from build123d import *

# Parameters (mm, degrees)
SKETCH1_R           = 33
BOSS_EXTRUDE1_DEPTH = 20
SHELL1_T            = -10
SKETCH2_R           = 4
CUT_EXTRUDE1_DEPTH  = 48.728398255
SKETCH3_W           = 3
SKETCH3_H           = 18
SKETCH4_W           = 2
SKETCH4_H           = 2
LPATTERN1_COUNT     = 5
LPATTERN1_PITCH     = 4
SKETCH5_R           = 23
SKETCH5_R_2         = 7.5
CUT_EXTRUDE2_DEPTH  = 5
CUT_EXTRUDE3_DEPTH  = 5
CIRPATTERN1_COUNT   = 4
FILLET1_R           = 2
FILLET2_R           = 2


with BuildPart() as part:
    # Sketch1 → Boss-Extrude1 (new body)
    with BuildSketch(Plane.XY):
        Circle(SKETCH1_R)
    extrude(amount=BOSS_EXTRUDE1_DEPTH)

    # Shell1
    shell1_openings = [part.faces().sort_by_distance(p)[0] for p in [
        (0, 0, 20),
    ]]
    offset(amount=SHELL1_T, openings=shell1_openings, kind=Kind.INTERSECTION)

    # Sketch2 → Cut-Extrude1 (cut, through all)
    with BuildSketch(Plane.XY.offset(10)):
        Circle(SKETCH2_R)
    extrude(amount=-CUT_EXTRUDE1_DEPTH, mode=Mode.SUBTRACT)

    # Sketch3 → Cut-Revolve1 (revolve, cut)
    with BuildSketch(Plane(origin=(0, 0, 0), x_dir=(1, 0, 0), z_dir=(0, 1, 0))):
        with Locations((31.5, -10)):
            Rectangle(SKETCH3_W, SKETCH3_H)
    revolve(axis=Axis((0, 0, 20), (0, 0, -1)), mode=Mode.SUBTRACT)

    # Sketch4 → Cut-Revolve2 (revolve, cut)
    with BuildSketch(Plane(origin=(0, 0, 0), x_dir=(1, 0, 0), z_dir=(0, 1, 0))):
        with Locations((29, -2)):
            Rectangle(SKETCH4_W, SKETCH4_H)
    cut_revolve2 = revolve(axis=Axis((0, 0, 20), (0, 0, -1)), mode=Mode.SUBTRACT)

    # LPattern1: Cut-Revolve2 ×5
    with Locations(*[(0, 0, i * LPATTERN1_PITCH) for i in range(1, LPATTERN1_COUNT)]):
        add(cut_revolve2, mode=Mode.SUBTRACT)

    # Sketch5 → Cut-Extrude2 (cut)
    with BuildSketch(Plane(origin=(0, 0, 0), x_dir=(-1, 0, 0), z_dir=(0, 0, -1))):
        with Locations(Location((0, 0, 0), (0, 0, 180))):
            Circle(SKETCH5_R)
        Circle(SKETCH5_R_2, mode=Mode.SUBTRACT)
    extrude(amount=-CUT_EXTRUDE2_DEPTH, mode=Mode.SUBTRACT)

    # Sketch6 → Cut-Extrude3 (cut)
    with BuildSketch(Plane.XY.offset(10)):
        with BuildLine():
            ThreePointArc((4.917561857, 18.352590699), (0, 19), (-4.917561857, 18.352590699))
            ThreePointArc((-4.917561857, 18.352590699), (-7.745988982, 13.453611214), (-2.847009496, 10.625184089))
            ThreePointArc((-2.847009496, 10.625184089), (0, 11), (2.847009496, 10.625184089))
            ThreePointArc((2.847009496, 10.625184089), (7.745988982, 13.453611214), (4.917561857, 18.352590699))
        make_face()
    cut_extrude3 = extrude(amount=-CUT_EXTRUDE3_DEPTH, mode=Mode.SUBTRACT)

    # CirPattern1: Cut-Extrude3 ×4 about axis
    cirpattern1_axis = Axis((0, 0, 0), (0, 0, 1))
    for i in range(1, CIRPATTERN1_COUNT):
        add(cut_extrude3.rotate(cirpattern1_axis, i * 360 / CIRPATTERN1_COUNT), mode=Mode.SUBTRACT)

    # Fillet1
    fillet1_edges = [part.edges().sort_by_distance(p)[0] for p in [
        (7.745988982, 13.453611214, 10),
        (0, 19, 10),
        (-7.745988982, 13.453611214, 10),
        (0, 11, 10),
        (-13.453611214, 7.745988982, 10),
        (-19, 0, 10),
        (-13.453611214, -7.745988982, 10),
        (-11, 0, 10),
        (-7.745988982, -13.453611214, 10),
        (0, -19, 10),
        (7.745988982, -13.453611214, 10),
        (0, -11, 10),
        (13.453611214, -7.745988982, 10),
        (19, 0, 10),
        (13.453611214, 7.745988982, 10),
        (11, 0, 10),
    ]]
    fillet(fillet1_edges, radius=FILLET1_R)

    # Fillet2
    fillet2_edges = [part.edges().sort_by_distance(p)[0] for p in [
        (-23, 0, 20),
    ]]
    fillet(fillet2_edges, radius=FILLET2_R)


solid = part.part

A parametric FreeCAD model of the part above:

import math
import FreeCAD as App
import Part
import Sketcher

V = App.Vector
Q = App.Units.Quantity


def edges_at(feature, points):
    """Names of the edges that pass closest to the given points."""
    edges = feature.Shape.Edges
    near = lambda p: min(range(len(edges)), key=lambda i: edges[i].distToShape(Part.Vertex(*p))[0])
    return sorted({f"Edge{near(p) + 1}" for p in points})


def faces_at(feature, points):
    """Names of the faces that lie closest to the given points."""
    faces = feature.Shape.Faces
    near = lambda p: min(range(len(faces)), key=lambda i: faces[i].distToShape(Part.Vertex(*p))[0])
    return sorted({f"Face{near(p) + 1}" for p in points})

doc = App.newDocument("Part")
body = doc.addObject("PartDesign::Body", "Body")

sketch1 = doc.addObject("Sketcher::SketchObject", "Sketch")
body.addObject(sketch1)
sketch1.AttachmentSupport = (doc.XY_Plane, [""])
sketch1.MapMode = "FlatFace"
sketch1.addGeometry(Part.Circle(V(0, 0, 0), V(0, 0, 1), 33), False)
sketch1.addConstraint([
    Sketcher.Constraint("Coincident", 0, 3, -1, 1),
    Sketcher.Constraint("Diameter", 0, Q("66 mm")),
])
pad1 = doc.addObject("PartDesign::Pad", "Pad")
body.addObject(pad1)
pad1.Profile = sketch1
pad1.Length = 20
doc.recompute()

thickness = doc.addObject("PartDesign::Thickness", "Thickness")
body.addObject(thickness)
thickness.Base = (pad1, faces_at(pad1, [(0, 0, 20)]))
thickness.Value = 10
thickness.Reversed = True
thickness.Join = "Intersection"

sketch2 = doc.addObject("Sketcher::SketchObject", "Sketch001")
body.addObject(sketch2)
sketch2.AttachmentSupport = (doc.XY_Plane, [""])
sketch2.MapMode = "FlatFace"
sketch2.AttachmentOffset = App.Placement(V(0, 0, 10), App.Rotation())
sketch2.addGeometry(Part.Circle(V(0, 0, 0), V(0, 0, 1), 4), False)
sketch2.addConstraint([
    Sketcher.Constraint("Coincident", 0, 3, -1, 1),
    Sketcher.Constraint("Diameter", 0, Q("8 mm")),
])
pocket1 = doc.addObject("PartDesign::Pocket", "Pocket")
body.addObject(pocket1)
pocket1.Profile = sketch2
pocket1.Type = "ThroughAll"

sketch3 = doc.addObject("Sketcher::SketchObject", "Sketch002")
body.addObject(sketch3)
sketch3.AttachmentSupport = (doc.XZ_Plane, [""])
sketch3.MapMode = "FlatFace"
sketch3.addGeometry([
    Part.LineSegment(V(30, 1, 0), V(30, 19, 0)),
    Part.LineSegment(V(30, 19, 0), V(33, 19, 0)),
    Part.LineSegment(V(33, 19, 0), V(33, 1, 0)),
    Part.LineSegment(V(33, 1, 0), V(30, 1, 0)),
], False)
sketch3.addConstraint([
    Sketcher.Constraint("Coincident", 0, 2, 1, 1),
    Sketcher.Constraint("Coincident", 1, 2, 2, 1),
    Sketcher.Constraint("Coincident", 2, 2, 3, 1),
    Sketcher.Constraint("Coincident", 3, 2, 0, 1),
    Sketcher.Constraint("Vertical", 0),
    Sketcher.Constraint("Horizontal", 1),
    Sketcher.Constraint("Vertical", 2),
    Sketcher.Constraint("Horizontal", 3),
    Sketcher.Constraint("DistanceX", 1, 1, 1, 2, Q("3 mm")),
    Sketcher.Constraint("DistanceY", 0, 1, 0, 2, Q("18 mm")),
    Sketcher.Constraint("DistanceX", -1, 1, 0, 2, Q("30 mm")),
    Sketcher.Constraint("DistanceY", -1, 1, 0, 2, Q("19 mm")),
])
groove = doc.addObject("PartDesign::Groove", "Groove")
body.addObject(groove)
groove.Profile = sketch3
groove.ReferenceAxis = (sketch3, ["V_Axis"])
groove.Angle = 360

sketch4 = doc.addObject("Sketcher::SketchObject", "Sketch003")
body.addObject(sketch4)
sketch4.AttachmentSupport = (doc.XZ_Plane, [""])
sketch4.MapMode = "FlatFace"
sketch4.addGeometry([
    Part.LineSegment(V(28, 1, 0), V(28, 3, 0)),
    Part.LineSegment(V(28, 3, 0), V(30, 3, 0)),
    Part.LineSegment(V(30, 3, 0), V(30, 1, 0)),
    Part.LineSegment(V(30, 1, 0), V(28, 1, 0)),
], False)
sketch4.addConstraint([
    Sketcher.Constraint("Coincident", 0, 2, 1, 1),
    Sketcher.Constraint("Coincident", 1, 2, 2, 1),
    Sketcher.Constraint("Coincident", 2, 2, 3, 1),
    Sketcher.Constraint("Coincident", 3, 2, 0, 1),
    Sketcher.Constraint("Vertical", 0),
    Sketcher.Constraint("Horizontal", 1),
    Sketcher.Constraint("Vertical", 2),
    Sketcher.Constraint("Horizontal", 3),
    Sketcher.Constraint("Equal", 3, 0),
    Sketcher.Constraint("DistanceX", 1, 1, 1, 2, Q("2 mm")),
    Sketcher.Constraint("DistanceX", -1, 1, 0, 2, Q("28 mm")),
    Sketcher.Constraint("DistanceY", -1, 1, 0, 2, Q("3 mm")),
])
groove2 = doc.addObject("PartDesign::Groove", "Groove001")
body.addObject(groove2)
groove2.Profile = sketch4
groove2.ReferenceAxis = (sketch4, ["V_Axis"])
groove2.Angle = 360
doc.recompute()

linearpattern = doc.addObject("PartDesign::LinearPattern", "LinearPattern")
body.addObject(linearpattern)
linearpattern.Originals = [groove2]
linearpattern.Direction = (doc.Z_Axis, [""])
linearpattern.Mode = "offset"
linearpattern.Offset = 4
linearpattern.Occurrences = 5
body.Tip = linearpattern

sketch5 = doc.addObject("Sketcher::SketchObject", "Sketch004")
body.addObject(sketch5)
sketch5.AttachmentSupport = (doc.XY_Plane, [""])
sketch5.MapMode = "FlatFace"
sketch5.addGeometry([
    Part.Circle(V(0, 0, 0), V(0, 0, 1), 23),
    Part.Circle(V(0, 0, 0), V(0, 0, 1), 7.5),
], False)
sketch5.addConstraint([
    Sketcher.Constraint("Coincident", 0, 3, -1, 1),
    Sketcher.Constraint("Coincident", 1, 3, -1, 1),
    Sketcher.Constraint("Diameter", 0, Q("46 mm")),
    Sketcher.Constraint("Diameter", 1, Q("15 mm")),
])
pocket2 = doc.addObject("PartDesign::Pocket", "Pocket001")
body.addObject(pocket2)
pocket2.Profile = sketch5
pocket2.Length = 5
pocket2.Reversed = True

sketch6 = doc.addObject("Sketcher::SketchObject", "Sketch005")
body.addObject(sketch6)
sketch6.AttachmentSupport = (doc.XY_Plane, [""])
sketch6.MapMode = "FlatFace"
sketch6.AttachmentOffset = App.Placement(V(0, 0, 10), App.Rotation())
sketch6.addGeometry([
    Part.ArcOfCircle(Part.Circle(V(0, 0, 0), V(0, 0, 1), 19), math.radians(75), math.radians(105)),
    Part.ArcOfCircle(Part.Circle(V(-3.882286, 14.488887, 0), V(0, 0, 1), 4), math.radians(105), math.radians(285)),
    Part.ArcOfCircle(Part.Circle(V(0, 0, 0), V(0, 0, 1), 11), math.radians(75), math.radians(105)),
    Part.ArcOfCircle(Part.Circle(V(3.882286, 14.488887, 0), V(0, 0, 1), 4), math.radians(-105), math.radians(75)),
], False)
sketch6.addConstraint([
    Sketcher.Constraint("Tangent", 0, 2, 1, 1),
    Sketcher.Constraint("Tangent", 1, 2, 2, 2),
    Sketcher.Constraint("Tangent", 2, 1, 3, 1),
    Sketcher.Constraint("Tangent", 3, 2, 0, 1),
    Sketcher.Constraint("Coincident", 0, 3, -1, 1),
    Sketcher.Constraint("Coincident", 2, 3, -1, 1),
    Sketcher.Constraint("Horizontal", 1, 3, 3, 3),
    Sketcher.Constraint("Radius", 0, Q("19 mm")),
    Sketcher.Constraint("Radius", 1, Q("4 mm")),
    Sketcher.Constraint("DistanceX", 0, 2, -1, 1, Q("4.917562 mm")),
])
pocket3 = doc.addObject("PartDesign::Pocket", "Pocket002")
body.addObject(pocket3)
pocket3.Profile = sketch6
pocket3.Length = 5
doc.recompute()

polarpattern = doc.addObject("PartDesign::PolarPattern", "PolarPattern")
body.addObject(polarpattern)
polarpattern.Originals = [pocket3]
polarpattern.Axis = (doc.Z_Axis, [""])
polarpattern.Angle = 360
polarpattern.Occurrences = 4
body.Tip = polarpattern
doc.recompute()

fillet = doc.addObject("PartDesign::Fillet", "Fillet")
body.addObject(fillet)
fillet.Base = (polarpattern, edges_at(polarpattern, [
    (7.746, 13.454, 10),
    (0, 19, 10),
    (-7.746, 13.454, 10),
    (0, 11, 10),
    (-13.454, 7.746, 10),
    (-19, 0, 10),
    (-13.454, -7.746, 10),
    (-11, 0, 10),
    (-7.746, -13.454, 10),
    (0, -19, 10),
    (7.746, -13.454, 10),
    (0, -11, 10),
    (13.454, -7.746, 10),
    (19, 0, 10),
    (13.454, 7.746, 10),
    (11, 0, 10),
]))
fillet.Radius = 2
doc.recompute()

fillet2 = doc.addObject("PartDesign::Fillet", "Fillet001")
body.addObject(fillet2)
fillet2.Base = (fillet, edges_at(fillet, [(-23, 0, 20)]))
fillet2.Radius = 2

doc.recompute()
